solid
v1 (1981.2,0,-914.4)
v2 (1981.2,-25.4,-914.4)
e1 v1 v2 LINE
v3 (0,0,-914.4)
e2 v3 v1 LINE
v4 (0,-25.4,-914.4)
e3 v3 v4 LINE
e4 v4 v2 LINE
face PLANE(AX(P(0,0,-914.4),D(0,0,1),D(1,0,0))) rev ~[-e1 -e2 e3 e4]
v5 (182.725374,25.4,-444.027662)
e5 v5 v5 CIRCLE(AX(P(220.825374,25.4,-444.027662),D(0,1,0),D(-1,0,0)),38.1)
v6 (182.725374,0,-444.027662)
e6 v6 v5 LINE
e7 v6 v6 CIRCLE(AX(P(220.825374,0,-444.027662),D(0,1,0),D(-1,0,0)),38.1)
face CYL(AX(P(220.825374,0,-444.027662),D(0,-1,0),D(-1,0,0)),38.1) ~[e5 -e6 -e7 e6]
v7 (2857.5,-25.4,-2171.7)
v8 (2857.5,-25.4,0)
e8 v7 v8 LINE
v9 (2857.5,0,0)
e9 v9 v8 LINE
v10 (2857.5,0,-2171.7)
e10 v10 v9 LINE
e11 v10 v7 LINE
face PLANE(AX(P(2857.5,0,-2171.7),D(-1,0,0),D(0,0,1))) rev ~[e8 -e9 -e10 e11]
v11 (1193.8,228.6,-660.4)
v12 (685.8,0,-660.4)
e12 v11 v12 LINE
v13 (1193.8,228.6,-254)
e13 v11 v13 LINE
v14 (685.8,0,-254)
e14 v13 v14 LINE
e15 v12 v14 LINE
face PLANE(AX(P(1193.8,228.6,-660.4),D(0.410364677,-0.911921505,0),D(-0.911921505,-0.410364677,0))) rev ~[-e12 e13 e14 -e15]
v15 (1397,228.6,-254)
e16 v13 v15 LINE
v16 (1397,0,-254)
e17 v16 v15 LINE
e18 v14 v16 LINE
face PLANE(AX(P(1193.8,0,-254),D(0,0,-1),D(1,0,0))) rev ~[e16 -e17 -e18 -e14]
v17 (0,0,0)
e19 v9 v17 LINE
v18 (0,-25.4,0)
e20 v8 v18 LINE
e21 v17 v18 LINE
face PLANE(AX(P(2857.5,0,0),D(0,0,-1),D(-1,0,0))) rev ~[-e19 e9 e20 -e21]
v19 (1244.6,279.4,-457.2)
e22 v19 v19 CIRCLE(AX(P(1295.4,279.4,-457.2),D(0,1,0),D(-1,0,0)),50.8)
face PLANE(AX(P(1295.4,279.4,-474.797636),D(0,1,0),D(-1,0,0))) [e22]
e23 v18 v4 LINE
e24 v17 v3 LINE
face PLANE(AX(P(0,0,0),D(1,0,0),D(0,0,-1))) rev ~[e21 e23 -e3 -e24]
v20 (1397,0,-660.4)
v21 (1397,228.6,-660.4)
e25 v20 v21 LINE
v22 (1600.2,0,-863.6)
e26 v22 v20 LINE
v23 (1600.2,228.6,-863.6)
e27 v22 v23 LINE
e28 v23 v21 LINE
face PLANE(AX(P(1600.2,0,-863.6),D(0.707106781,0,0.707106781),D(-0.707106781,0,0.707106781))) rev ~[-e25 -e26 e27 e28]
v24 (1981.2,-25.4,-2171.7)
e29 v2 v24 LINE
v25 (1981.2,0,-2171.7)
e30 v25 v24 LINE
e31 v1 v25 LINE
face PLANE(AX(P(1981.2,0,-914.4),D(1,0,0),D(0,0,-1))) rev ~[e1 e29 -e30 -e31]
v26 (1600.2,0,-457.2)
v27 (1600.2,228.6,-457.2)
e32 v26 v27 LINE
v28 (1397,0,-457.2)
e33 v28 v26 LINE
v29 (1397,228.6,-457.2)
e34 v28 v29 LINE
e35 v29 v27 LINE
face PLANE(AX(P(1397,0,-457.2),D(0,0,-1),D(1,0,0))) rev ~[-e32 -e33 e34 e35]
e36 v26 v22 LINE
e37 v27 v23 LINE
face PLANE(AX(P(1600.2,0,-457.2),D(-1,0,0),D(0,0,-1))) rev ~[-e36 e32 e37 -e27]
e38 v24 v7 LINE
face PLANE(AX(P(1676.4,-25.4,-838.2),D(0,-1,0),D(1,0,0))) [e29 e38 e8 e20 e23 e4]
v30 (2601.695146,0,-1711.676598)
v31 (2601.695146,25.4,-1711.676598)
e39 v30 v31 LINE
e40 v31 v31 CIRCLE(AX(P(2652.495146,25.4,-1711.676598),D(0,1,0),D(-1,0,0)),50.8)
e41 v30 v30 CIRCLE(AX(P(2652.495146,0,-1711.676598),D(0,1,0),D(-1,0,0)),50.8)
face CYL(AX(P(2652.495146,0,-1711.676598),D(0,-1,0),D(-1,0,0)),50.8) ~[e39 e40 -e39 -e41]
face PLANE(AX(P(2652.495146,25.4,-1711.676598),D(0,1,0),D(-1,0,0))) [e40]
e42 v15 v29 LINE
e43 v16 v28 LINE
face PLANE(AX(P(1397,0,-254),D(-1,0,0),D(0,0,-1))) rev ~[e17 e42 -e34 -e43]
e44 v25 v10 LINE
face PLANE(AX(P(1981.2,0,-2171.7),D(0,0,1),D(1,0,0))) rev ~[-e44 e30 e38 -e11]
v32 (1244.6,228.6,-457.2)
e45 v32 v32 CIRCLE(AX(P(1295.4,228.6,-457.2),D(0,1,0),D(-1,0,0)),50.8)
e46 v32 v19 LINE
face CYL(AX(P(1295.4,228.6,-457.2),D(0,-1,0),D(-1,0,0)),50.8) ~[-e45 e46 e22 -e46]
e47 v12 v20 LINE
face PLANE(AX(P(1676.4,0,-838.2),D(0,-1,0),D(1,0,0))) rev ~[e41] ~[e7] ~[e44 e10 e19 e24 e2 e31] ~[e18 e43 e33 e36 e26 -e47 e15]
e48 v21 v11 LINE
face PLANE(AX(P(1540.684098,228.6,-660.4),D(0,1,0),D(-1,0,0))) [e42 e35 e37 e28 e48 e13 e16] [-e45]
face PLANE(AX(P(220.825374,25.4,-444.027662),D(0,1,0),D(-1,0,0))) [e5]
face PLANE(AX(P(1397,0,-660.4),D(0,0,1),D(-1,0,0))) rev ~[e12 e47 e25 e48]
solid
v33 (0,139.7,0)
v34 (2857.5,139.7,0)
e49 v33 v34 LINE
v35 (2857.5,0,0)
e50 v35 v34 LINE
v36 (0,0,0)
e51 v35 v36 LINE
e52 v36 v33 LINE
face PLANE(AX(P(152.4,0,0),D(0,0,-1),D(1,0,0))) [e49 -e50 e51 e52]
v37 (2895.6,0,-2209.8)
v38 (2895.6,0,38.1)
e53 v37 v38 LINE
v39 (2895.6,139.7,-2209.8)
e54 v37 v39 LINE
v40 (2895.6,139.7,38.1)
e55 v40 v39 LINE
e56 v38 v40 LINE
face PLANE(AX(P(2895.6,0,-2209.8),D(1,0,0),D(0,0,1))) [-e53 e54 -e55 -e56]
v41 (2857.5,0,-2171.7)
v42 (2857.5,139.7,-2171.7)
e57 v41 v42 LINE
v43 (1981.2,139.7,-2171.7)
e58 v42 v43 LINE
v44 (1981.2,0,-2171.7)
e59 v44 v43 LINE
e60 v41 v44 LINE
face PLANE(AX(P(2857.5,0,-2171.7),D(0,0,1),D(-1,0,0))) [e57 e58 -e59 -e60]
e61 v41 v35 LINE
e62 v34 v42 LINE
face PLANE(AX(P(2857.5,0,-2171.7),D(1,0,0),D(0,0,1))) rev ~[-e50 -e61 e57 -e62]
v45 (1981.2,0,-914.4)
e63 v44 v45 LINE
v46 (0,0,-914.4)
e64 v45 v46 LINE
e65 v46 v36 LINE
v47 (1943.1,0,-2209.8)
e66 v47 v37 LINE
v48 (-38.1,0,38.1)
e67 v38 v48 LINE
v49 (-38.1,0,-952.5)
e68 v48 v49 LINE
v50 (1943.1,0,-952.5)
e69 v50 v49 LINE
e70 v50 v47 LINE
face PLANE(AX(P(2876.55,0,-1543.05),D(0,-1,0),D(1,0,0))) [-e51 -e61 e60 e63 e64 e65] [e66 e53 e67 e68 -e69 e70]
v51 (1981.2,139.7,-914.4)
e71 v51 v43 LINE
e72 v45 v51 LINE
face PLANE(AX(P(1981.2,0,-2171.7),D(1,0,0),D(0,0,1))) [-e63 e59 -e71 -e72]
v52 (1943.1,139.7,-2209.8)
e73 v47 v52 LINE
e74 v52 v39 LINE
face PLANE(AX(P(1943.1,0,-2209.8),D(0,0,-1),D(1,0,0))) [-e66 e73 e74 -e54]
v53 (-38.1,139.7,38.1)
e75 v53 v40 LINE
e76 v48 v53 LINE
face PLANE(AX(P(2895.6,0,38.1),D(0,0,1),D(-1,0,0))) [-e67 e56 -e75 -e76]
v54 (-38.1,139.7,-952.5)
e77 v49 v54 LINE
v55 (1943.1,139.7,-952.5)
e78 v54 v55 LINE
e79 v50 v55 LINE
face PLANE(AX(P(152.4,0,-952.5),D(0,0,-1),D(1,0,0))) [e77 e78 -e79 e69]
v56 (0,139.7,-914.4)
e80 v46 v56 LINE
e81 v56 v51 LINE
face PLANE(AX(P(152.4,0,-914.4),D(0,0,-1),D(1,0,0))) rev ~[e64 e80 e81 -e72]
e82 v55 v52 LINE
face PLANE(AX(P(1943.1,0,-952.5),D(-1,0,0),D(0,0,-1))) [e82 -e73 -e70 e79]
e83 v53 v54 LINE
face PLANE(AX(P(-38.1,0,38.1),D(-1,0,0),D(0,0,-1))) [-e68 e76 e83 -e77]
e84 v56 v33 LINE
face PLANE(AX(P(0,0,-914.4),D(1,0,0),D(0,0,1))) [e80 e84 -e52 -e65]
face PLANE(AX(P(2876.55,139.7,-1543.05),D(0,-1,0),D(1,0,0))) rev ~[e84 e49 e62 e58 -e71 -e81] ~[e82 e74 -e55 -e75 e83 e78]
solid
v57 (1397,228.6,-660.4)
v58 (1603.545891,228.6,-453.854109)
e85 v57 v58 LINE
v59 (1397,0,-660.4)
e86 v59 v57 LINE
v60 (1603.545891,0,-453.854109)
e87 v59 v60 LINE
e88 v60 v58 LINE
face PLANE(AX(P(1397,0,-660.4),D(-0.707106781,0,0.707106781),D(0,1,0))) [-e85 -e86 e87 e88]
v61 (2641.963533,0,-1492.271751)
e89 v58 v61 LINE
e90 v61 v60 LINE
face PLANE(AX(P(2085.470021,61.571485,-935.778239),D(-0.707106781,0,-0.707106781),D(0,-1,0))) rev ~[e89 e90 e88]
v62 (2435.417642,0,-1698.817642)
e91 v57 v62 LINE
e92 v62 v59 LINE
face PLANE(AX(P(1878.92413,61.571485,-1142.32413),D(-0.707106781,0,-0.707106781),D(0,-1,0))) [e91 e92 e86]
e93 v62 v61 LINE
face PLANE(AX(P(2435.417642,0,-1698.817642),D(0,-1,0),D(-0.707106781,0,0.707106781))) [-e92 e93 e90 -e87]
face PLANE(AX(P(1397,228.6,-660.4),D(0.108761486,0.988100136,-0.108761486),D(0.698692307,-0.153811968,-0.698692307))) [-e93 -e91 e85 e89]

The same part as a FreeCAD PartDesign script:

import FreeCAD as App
import Part
import Sketcher

V = App.Vector
Q = App.Units.Quantity


def add_polygon(sketch, points):
    """Adds a closed chain of lines whose ends are joined by coincident constraints."""
    first, n = sketch.GeometryCount, len(points)
    for a, b in zip(points, points[1:] + points[:1]):
        sketch.addGeometry(Part.LineSegment(App.Vector(*a, 0), App.Vector(*b, 0)), False)
    for i in range(n):
        sketch.addConstraint(Sketcher.Constraint("Coincident", first + i, 2, first + (i + 1) % n, 1))

doc = App.newDocument("Part")
body = doc.addObject("PartDesign::Body", "Body")

sketch1 = body.newObject("Sketcher::SketchObject", "Sketch")
sketch1.AttachmentSupport = (doc.getObject("XZ_Plane"), [""])
sketch1.MapMode = "FlatFace"
add_polygon(sketch1, [(152, -952), (152, -914), (0, -914), (0, 0), (152, 0), (152, 38), (-38, 38), (-38, -952)])
sketch1.addConstraint([
    Sketcher.Constraint("Vertical", 0),
    Sketcher.Constraint("Horizontal", 1),
    Sketcher.Constraint("Vertical", 2),
    Sketcher.Constraint("Horizontal", 3),
    Sketcher.Constraint("Vertical", 4),
    Sketcher.Constraint("Horizontal", 5),
    Sketcher.Constraint("Vertical", 6),
    Sketcher.Constraint("Horizontal", 7),
    Sketcher.Constraint("Coincident", 2, 2, -1, 1),
    Sketcher.Constraint("Vertical", 0, 2, 3, 2),
    Sketcher.Constraint("Equal", 0, 4),
    Sketcher.Constraint("DistanceX", 1, 2, 1, 1, Q("6 in")),
    Sketcher.Constraint("DistanceY", 2, 1, 2, 2, Q("36 in")),
    Sketcher.Constraint("DistanceY", 6, 2, 6, 1, Q("39 in")),
    Sketcher.Constraint("DistanceX", 5, 2, 5, 1, Q("7.5 in")),
])
pad1 = body.newObject("PartDesign::Pad", "Pad")
pad1.Profile = sketch1
pad1.Length = Q("5.5 in")
pad1.Reversed = True

sketch2 = body.newObject("Sketcher::SketchObject", "Sketch001")
sketch2.AttachmentSupport = (doc.getObject("XZ_Plane"), [""])
sketch2.MapMode = "FlatFace"
add_polygon(sketch2, [(2858, 0), (2858, -914), (2896, -914), (2896, 38), (152, 38), (152, 0)])
sketch2.addConstraint([
    Sketcher.Constraint("Vertical", 0),
    Sketcher.Constraint("Horizontal", 1),
    Sketcher.Constraint("Vertical", 2),
    Sketcher.Constraint("Horizontal", 3),
    Sketcher.Constraint("Vertical", 4),
    Sketcher.Constraint("Horizontal", 5),
    Sketcher.Constraint("PointOnObject", 4, 2, -1),
    Sketcher.Constraint("Equal", 1, 4),
    Sketcher.Constraint("DistanceX", 3, 2, 3, 1, Q("108 in")),
    Sketcher.Constraint("DistanceY", 0, 2, 0, 1, Q("36 in")),
    Sketcher.Constraint("DistanceX", 1, 1, 1, 2, Q("1.5 in")),
    Sketcher.Constraint("DistanceX", -1, 1, 1, 2, Q("114 in")),
])
pad2 = body.newObject("PartDesign::Pad", "Pad001")
pad2.Profile = sketch2
pad2.Length = Q("5.5 in")
pad2.Reversed = True

sketch3 = body.newObject("Sketcher::SketchObject", "Sketch002")
sketch3.AttachmentSupport = (doc.getObject("XZ_Plane"), [""])
sketch3.MapMode = "FlatFace"
add_polygon(sketch3, [(152, -914), (152, -952), (1981, -952), (1981, -914)])
sketch3.addConstraint([
    Sketcher.Constraint("Vertical", 0),
    Sketcher.Constraint("Horizontal", 1),
    Sketcher.Constraint("Vertical", 2),
    Sketcher.Constraint("Horizontal", 3),
    Sketcher.Constraint("DistanceX", 1, 1, 1, 2, Q("72 in")),
    Sketcher.Constraint("DistanceY", 0, 2, 0, 1, Q("1.5 in")),
    Sketcher.Constraint("DistanceX", -1, 1, 0, 2, Q("6 in")),
    Sketcher.Constraint("DistanceY", 2, 2, -1, 1, Q("36 in")),
])
pad3 = body.newObject("PartDesign::Pad", "Pad002")
pad3.Profile = sketch3
pad3.Length = Q("5.5 in")
pad3.Reversed = True

sketch4 = body.newObject("Sketcher::SketchObject", "Sketch003")
sketch4.AttachmentSupport = (doc.getObject("XZ_Plane"), [""])
sketch4.MapMode = "FlatFace"
add_polygon(sketch4, [(2858, -914), (2858, -2172), (1981, -2172), (1981, -952), (1943, -952), (1943, -2210), (2896, -2210), (2896, -914)])
sketch4.addConstraint([
    Sketcher.Constraint("Vertical", 0),
    Sketcher.Constraint("Horizontal", 1),
    Sketcher.Constraint("Vertical", 2),
    Sketcher.Constraint("Horizontal", 3),
    Sketcher.Constraint("Vertical", 4),
    Sketcher.Constraint("Horizontal", 5),
    Sketcher.Constraint("Vertical", 6),
    Sketcher.Constraint("Horizontal", 7),
    Sketcher.Constraint("Equal", 3, 7),
    Sketcher.Constraint("Equal", 0, 4),
    Sketcher.Constraint("DistanceY", 2, 1, 2, 2, Q("48 in")),
    Sketcher.Constraint("DistanceY", 6, 1, 6, 2, Q("51 in")),
    Sketcher.Constraint("DistanceX", 1, 2, 1, 1, Q("34.5 in")),
    Sketcher.Constraint("DistanceX", 3, 2, 3, 1, Q("1.5 in")),
    Sketcher.Constraint("DistanceX", -1, 1, 1, 2, Q("78 in")),
    Sketcher.Constraint("DistanceY", 4, 2, -1, 1, Q("87 in")),
])
pad4 = body.newObject("PartDesign::Pad", "Pad003")
pad4.Profile = sketch4
pad4.Length = Q("5.5 in")
pad4.Reversed = True
body2 = doc.addObject("PartDesign::Body", "Body001")

sketch5 = body2.newObject("Sketcher::SketchObject", "Sketch004")
sketch5.AttachmentSupport = (doc.getObject("XZ_Plane001"), [""])
sketch5.MapMode = "FlatFace"
add_polygon(sketch5, [(0, -914), (1981, -914), (1981, -2172), (2858, -2172), (2858, 0), (0, 0)])
sketch5.addConstraint([
    Sketcher.Constraint("Horizontal", 0),
    Sketcher.Constraint("Vertical", 1),
    Sketcher.Constraint("Horizontal", 2),
    Sketcher.Constraint("Vertical", 3),
    Sketcher.Constraint("Horizontal", 4),
    Sketcher.Constraint("Vertical", 5),
    Sketcher.Constraint("Coincident", 4, 2, -1, 1),
    Sketcher.Constraint("DistanceX", 0, 1, 0, 2, Q("78 in")),
    Sketcher.Constraint("DistanceY", 5, 2, 5, 1, Q("36 in")),
    Sketcher.Constraint("DistanceX", 2, 1, 2, 2, Q("34.5 in")),
    Sketcher.Constraint("DistanceY", 1, 2, 1, 1, Q("49.5 in")),
])
pad5 = body2.newObject("PartDesign::Pad", "Pad004")
pad5.Profile = sketch5
pad5.Length = Q("1 in")

sketch6 = body2.newObject("Sketcher::SketchObject", "Sketch005")
sketch6.AttachmentSupport = (doc.getObject("XY_Plane001"), [""])
sketch6.MapMode = "FlatFace"
sketch6.AttachmentOffset = App.Placement(V(0, 0, -26 * 25.4), App.Rotation())
add_polygon(sketch6, [(1194, 229), (686, 0), (1194, 0)])
sketch6.addConstraint([
    Sketcher.Constraint("Horizontal", 1),
    Sketcher.Constraint("Vertical", 2),
    Sketcher.Constraint("PointOnObject", 0, 2, -1),
    Sketcher.Constraint("DistanceX", 1, 1, 1, 2, Q("20 in")),
    Sketcher.Constraint("DistanceY", 2, 1, 2, 2, Q("9 in")),
    Sketcher.Constraint("DistanceX", -1, 1, 0, 2, Q("27 in")),
])
pad6 = body2.newObject("PartDesign::Pad", "Pad005")
pad6.Profile = sketch6
pad6.Length = Q("16 in")

sketch7 = body2.newObject("Sketcher::SketchObject", "Sketch006")
sketch7.AttachmentSupport = (doc.getObject("XZ_Plane001"), [""])
sketch7.MapMode = "FlatFace"
add_polygon(sketch7, [(1194, -660), (1194, -254), (1397, -254), (1397, -660)])
sketch7.addConstraint([
    Sketcher.Constraint("Vertical", 0),
    Sketcher.Constraint("Horizontal", 1),
    Sketcher.Constraint("Vertical", 2),
    Sketcher.Constraint("Horizontal", 3),
    Sketcher.Constraint("DistanceX", 1, 1, 1, 2, Q("8 in")),
    Sketcher.Constraint("DistanceY", 0, 1, 0, 2, Q("16 in")),
    Sketcher.Constraint("DistanceX", -1, 1, 0, 2, Q("47 in")),
    Sketcher.Constraint("DistanceY", 0, 2, -1, 1, Q("10 in")),
])
pad7 = body2.newObject("PartDesign::Pad", "Pad006")
pad7.Profile = sketch7
pad7.Length = Q("9 in")
pad7.Reversed = True

sketch8 = body2.newObject("Sketcher::SketchObject", "Sketch007")
sketch8.AttachmentSupport = (doc.getObject("XZ_Plane001"), [""])
sketch8.MapMode = "FlatFace"
sketch8.AttachmentOffset = App.Placement(V(0, 0, -9 * 25.4), App.Rotation())
sketch8.addGeometry(Part.Circle(V(1295, -457, 0), V(0, 0, 1), 51), False)
sketch8.addConstraint([
    Sketcher.Constraint("Diameter", 0, Q("4 in")),
    Sketcher.Constraint("DistanceX", -1, 1, 0, 3, Q("51 in")),
    Sketcher.Constraint("DistanceY", 0, 3, -1, 1, Q("18 in")),
])
pad8 = body2.newObject("PartDesign::Pad", "Pad007")
pad8.Profile = sketch8
pad8.Length = Q("2 in")
pad8.Reversed = True

sketch9 = body2.newObject("Sketcher::SketchObject", "Sketch008")
sketch9.AttachmentSupport = (doc.getObject("XZ_Plane001"), [""])
sketch9.MapMode = "FlatFace"
add_polygon(sketch9, [(1600, -457), (1397, -660), (1397, -457)])
sketch9.addConstraint([
    Sketcher.Constraint("Vertical", 1),
    Sketcher.Constraint("Horizontal", 2),
    Sketcher.Constraint("Equal", 2, 1),
    Sketcher.Constraint("DistanceX", 2, 1, 2, 2, Q("8 in")),
    Sketcher.Constraint("DistanceX", -1, 1, 0, 2, Q("55 in")),
    Sketcher.Constraint("DistanceY", 0, 2, -1, 1, Q("26 in")),
])
pad9 = body2.newObject("PartDesign::Pad", "Pad008")
pad9.Profile = sketch9
pad9.Length = Q("9 in")
pad9.Reversed = True

sketch10 = body2.newObject("Sketcher::SketchObject", "Sketch009")
sketch10.AttachmentSupport = (doc.getObject("XZ_Plane001"), [""])
sketch10.MapMode = "FlatFace"
add_polygon(sketch10, [(1600, -457), (1600, -864), (1397, -660)])
sketch10.addConstraint([
    Sketcher.Constraint("Vertical", 0),
    Sketcher.Constraint("Perpendicular", 1, 2),
    Sketcher.Constraint("Equal", 1, 2),
    Sketcher.Constraint("DistanceY", 0, 2, 0, 1, Q("16 in")),
    Sketcher.Constraint("DistanceX", -1, 1, 0, 2, Q("63 in")),
    Sketcher.Constraint("DistanceY", 0, 2, -1, 1, Q("34 in")),
])
pad10 = body2.newObject("PartDesign::Pad", "Pad009")
pad10.Profile = sketch10
pad10.Length = Q("9 in")
pad10.Reversed = True

sketch11 = body2.newObject("Sketcher::SketchObject", "Sketch010")
sketch11.AttachmentSupport = (doc.getObject("XZ_Plane001"), [""])
sketch11.MapMode = "FlatFace"
sketch11.addGeometry(Part.Circle(V(2652, -1712, 0), V(0, 0, 1), 51), False)
sketch11.addConstraint([
    Sketcher.Constraint("Diameter", 0, Q("4 in")),
    Sketcher.Constraint("DistanceX", -1, 1, 0, 3, Q("2652.495146 mm")),
    Sketcher.Constraint("DistanceY", 0, 3, -1, 1, Q("1711.676598 mm")),
])
pad11 = body2.newObject("PartDesign::Pad", "Pad010")
pad11.Profile = sketch11
pad11.Length = Q("1 in")
pad11.Reversed = True

sketch12 = body2.newObject("Sketcher::SketchObject", "Sketch011")
sketch12.AttachmentSupport = (doc.getObject("XZ_Plane001"), [""])
sketch12.MapMode = "FlatFace"
sketch12.addGeometry(Part.Circle(V(221, -444, 0), V(0, 0, 1), 38), False)
sketch12.addConstraint([
    Sketcher.Constraint("Diameter", 0, Q("3 in")),
    Sketcher.Constraint("DistanceX", -1, 1, 0, 3, Q("220.825374 mm")),
    Sketcher.Constraint("DistanceY", 0, 3, -1, 1, Q("444.027662 mm")),
])
pad12 = body2.newObject("PartDesign::Pad", "Pad011")
pad12.Profile = sketch12
pad12.Length = Q("1 in")
pad12.Reversed = True
body3 = doc.addObject("PartDesign::Body", "Body002")

sketch13 = body3.newObject("Sketcher::SketchObject", "Sketch012")
sketch13.Placement = App.Placement(V(368.3, 0, 368.3), App.Rotation(V(0, -1, 0), V(-0.707106781, 0, 0.707106781), V(-0.707106781, 0, -0.707106781), "ZXY"))
add_polygon(sketch13, [(0, -2923), (0, -1455), (-229, -1455)])
sketch13.addConstraint([
    Sketcher.Constraint("Vertical", 0),
    Sketcher.Constraint("Horizontal", 1),
    Sketcher.Constraint("PointOnObject", 0, 2, -2),
    Sketcher.Constraint("DistanceX", 1, 2, 1, 1, Q("9 in")),
    Sketcher.Constraint("DistanceY", 0, 1, 0, 2, Q("1468.544312 mm")),
    Sketcher.Constraint("DistanceY", 0, 2, -1, 1, Q("1454.801491 mm")),
])
pad13 = body3.newObject("PartDesign::Pad", "Pad012")
pad13.Profile = sketch13
pad13.Length = Q("11.5 in")
pad13.Reversed = True

doc.recompute()
